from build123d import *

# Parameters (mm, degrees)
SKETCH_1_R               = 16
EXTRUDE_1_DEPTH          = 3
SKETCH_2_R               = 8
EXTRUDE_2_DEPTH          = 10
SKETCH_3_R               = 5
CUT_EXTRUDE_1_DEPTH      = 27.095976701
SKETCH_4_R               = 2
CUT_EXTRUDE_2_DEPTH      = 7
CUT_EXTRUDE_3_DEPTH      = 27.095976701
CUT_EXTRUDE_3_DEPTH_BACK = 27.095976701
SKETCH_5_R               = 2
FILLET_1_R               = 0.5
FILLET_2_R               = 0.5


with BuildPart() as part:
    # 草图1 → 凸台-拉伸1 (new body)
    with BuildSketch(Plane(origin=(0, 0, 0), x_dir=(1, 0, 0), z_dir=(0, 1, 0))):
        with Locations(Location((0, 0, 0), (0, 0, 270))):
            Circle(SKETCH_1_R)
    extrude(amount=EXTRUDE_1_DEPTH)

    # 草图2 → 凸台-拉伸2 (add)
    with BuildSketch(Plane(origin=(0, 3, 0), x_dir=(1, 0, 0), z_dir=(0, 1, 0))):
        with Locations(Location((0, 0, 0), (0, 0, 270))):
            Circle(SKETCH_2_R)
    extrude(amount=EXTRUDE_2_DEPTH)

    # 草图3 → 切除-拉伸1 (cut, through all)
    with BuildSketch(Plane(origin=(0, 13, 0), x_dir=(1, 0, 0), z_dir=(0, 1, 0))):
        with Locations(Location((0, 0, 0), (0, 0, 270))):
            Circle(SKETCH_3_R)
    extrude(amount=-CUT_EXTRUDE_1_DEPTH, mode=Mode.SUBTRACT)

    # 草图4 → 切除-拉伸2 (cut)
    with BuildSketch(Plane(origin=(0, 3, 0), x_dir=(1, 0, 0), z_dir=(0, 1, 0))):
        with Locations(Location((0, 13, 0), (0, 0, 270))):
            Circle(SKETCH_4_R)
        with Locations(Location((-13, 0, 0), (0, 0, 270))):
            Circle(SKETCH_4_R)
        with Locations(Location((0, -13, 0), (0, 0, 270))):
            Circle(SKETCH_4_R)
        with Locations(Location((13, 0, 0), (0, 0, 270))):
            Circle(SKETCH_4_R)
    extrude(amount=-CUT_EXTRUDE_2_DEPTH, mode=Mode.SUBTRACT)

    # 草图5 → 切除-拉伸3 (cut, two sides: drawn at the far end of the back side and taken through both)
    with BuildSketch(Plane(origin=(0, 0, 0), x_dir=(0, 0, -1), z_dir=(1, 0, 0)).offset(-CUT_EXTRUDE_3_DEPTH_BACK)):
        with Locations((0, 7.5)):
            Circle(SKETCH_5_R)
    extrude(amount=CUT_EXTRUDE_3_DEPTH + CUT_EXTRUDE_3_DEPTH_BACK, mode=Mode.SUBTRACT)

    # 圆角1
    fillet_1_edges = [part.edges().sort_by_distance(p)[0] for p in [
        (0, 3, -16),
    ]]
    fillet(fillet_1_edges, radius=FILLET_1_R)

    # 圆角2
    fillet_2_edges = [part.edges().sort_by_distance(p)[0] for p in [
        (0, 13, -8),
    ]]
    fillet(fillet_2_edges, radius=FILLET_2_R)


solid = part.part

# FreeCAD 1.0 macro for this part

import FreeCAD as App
import Part
import Sketcher

V = App.Vector
Q = App.Units.Quantity


def edges_at(feature, points):
    """Names of the edges that pass closest to the given points."""
    edges = feature.Shape.Edges
    near = lambda p: min(range(len(edges)), key=lambda i: edges[i].distToShape(Part.Vertex(*p))[0])
    return sorted({f"Edge{near(p) + 1}" for p in points})

doc = App.newDocument("Part")
params = doc.addObject("Spreadsheet::Sheet", "Params")
for row, (alias, value) in enumerate([
    ("sketch1_diameter", "32 mm"),
    ("pad1_length", "3 mm"),
    ("sketch2_diameter", "16 mm"),
    ("pad2_length", "10 mm"),
    ("sketch3_diameter", "10 mm"),
    ("sketch4_diameter", "4 mm"),
    ("pocket2_length", "7 mm"),
    ("sketch5_diameter", "4 mm"),
    ("fillet_radius", "0.5 mm"),
    ("fillet2_radius", "0.5 mm"),
], start=1):
    params.set(f"A{row}", alias)
    params.set(f"B{row}", "=" + value)
    params.setAlias(f"B{row}", alias)

body = doc.addObject("PartDesign::Body", "Body")

# Sketch on XZ plane
sketch1 = body.newObject("Sketcher::SketchObject", "Sketch")
sketch1.AttachmentSupport = (doc.getObject("XZ_Plane"), [""])
sketch1.MapMode = "FlatFace"
sketch1.addGeometry(Part.Circle(V(0, 0, 0), V(0, 0, 1), 16), False)
sketch1.addConstraint([
    Sketcher.Constraint("Coincident", 0, 3, -1, 1),
    Sketcher.Constraint("Diameter", 0, Q("32 mm")),
])
sketch1.setExpression("Constraints[1]", "Params.sketch1_diameter")
pad1 = body.newObject("PartDesign::Pad", "Pad")
pad1.Profile = sketch1
pad1.setExpression("Length", "Params.pad1_length")
pad1.Reversed = True

# Sketch on XZ plane
sketch2 = body.newObject("Sketcher::SketchObject", "Sketch001")
sketch2.AttachmentSupport = (doc.getObject("XZ_Plane"), [""])
sketch2.MapMode = "FlatFace"
sketch2.AttachmentOffset = App.Placement(V(0, 0, -3), App.Rotation())
sketch2.addGeometry(Part.Circle(V(0, 0, 0), V(0, 0, 1), 8), False)
sketch2.addConstraint([
    Sketcher.Constraint("Coincident", 0, 3, -1, 1),
    Sketcher.Constraint("Diameter", 0, Q("16 mm")),
])
sketch2.setExpression("Constraints[1]", "Params.sketch2_diameter")
pad2 = body.newObject("PartDesign::Pad", "Pad001")
pad2.Profile = sketch2
pad2.setExpression("Length", "Params.pad2_length")
pad2.Reversed = True

# Sketch on XZ plane
sketch3 = body.newObject("Sketcher::SketchObject", "Sketch002")
sketch3.AttachmentSupport = (doc.getObject("XZ_Plane"), [""])
sketch3.MapMode = "FlatFace"
sketch3.AttachmentOffset = App.Placement(V(0, 0, -13), App.Rotation())
sketch3.addGeometry(Part.Circle(V(0, 0, 0), V(0, 0, 1), 5), False)
sketch3.addConstraint([
    Sketcher.Constraint("Coincident", 0, 3, -1, 1),
    Sketcher.Constraint("Diameter", 0, Q("10 mm")),
])
sketch3.setExpression("Constraints[1]", "Params.sketch3_diameter")
pocket1 = body.newObject("PartDesign::Pocket", "Pocket")
pocket1.Profile = sketch3
pocket1.Type = "ThroughAll"
pocket1.Reversed = True

# Sketch on XZ plane
sketch4 = body.newObject("Sketcher::SketchObject", "Sketch003")
sketch4.AttachmentSupport = (doc.getObject("XZ_Plane"), [""])
sketch4.MapMode = "FlatFace"
sketch4.AttachmentOffset = App.Placement(V(0, 0, -3), App.Rotation())
sketch4.addGeometry([
    Part.Circle(V(0, -13, 0), V(0, 0, 1), 2),
    Part.Circle(V(-13, 0, 0), V(0, 0, 1), 2),
    Part.Circle(V(0, 13, 0), V(0, 0, 1), 2),
    Part.Circle(V(13, 0, 0), V(0, 0, 1), 2),
], False)
sketch4.addConstraint([
    Sketcher.Constraint("Equal", 0, 1),
    Sketcher.Constraint("Equal", 1, 2),
    Sketcher.Constraint("Equal", 2, 3),
    Sketcher.Constraint("Symmetric", 0, 3, 2, 3, -1, 1),
    Sketcher.Constraint("Symmetric", 1, 3, 3, 3, -1, 1),
    Sketcher.Constraint("PointOnObject", 0, 3, -2),
    Sketcher.Constraint("PointOnObject", 1, 3, -1),
    Sketcher.Constraint("Diameter", 0, Q("4 mm")),
    Sketcher.Constraint("DistanceY", 0, 3, -1, 1, Q("13 mm")),
    Sketcher.Constraint("DistanceX", 1, 3, -1, 1, Q("13 mm")),
])
sketch4.setExpression("Constraints[7]", "Params.sketch4_diameter")
pocket2 = body.newObject("PartDesign::Pocket", "Pocket001")
pocket2.Profile = sketch4
pocket2.setExpression("Length", "Params.pocket2_length")
pocket2.Reversed = True

# Sketch on YZ plane
sketch5 = body.newObject("Sketcher::SketchObject", "Sketch004")
sketch5.AttachmentSupport = (doc.getObject("YZ_Plane"), [""])
sketch5.MapMode = "FlatFace"
sketch5.addGeometry(Part.Circle(V(7.5, 0, 0), V(0, 0, 1), 2), False)
sketch5.addConstraint([
    Sketcher.Constraint("PointOnObject", 0, 3, -1),
    Sketcher.Constraint("Diameter", 0, Q("4 mm")),
    Sketcher.Constraint("DistanceX", -1, 1, 0, 3, Q("7.5 mm")),
])
sketch5.setExpression("Constraints[1]", "Params.sketch5_diameter")
pocket3 = body.newObject("PartDesign::Pocket", "Pocket002")
pocket3.Profile = sketch5
pocket3.Type = "ThroughAll"
pocket3.Midplane = True
doc.recompute()

fillet = body.newObject("PartDesign::Fillet", "Fillet")
fillet.Base = (pocket3, edges_at(pocket3, [(0, 3, -16)]))
fillet.setExpression("Radius", "Params.fillet_radius")
doc.recompute()

fillet2 = body.newObject("PartDesign::Fillet", "Fillet001")
fillet2.Base = (fillet, edges_at(fillet, [(0, 13, -8)]))
fillet2.setExpression("Radius", "Params.fillet2_radius")

doc.recompute()
